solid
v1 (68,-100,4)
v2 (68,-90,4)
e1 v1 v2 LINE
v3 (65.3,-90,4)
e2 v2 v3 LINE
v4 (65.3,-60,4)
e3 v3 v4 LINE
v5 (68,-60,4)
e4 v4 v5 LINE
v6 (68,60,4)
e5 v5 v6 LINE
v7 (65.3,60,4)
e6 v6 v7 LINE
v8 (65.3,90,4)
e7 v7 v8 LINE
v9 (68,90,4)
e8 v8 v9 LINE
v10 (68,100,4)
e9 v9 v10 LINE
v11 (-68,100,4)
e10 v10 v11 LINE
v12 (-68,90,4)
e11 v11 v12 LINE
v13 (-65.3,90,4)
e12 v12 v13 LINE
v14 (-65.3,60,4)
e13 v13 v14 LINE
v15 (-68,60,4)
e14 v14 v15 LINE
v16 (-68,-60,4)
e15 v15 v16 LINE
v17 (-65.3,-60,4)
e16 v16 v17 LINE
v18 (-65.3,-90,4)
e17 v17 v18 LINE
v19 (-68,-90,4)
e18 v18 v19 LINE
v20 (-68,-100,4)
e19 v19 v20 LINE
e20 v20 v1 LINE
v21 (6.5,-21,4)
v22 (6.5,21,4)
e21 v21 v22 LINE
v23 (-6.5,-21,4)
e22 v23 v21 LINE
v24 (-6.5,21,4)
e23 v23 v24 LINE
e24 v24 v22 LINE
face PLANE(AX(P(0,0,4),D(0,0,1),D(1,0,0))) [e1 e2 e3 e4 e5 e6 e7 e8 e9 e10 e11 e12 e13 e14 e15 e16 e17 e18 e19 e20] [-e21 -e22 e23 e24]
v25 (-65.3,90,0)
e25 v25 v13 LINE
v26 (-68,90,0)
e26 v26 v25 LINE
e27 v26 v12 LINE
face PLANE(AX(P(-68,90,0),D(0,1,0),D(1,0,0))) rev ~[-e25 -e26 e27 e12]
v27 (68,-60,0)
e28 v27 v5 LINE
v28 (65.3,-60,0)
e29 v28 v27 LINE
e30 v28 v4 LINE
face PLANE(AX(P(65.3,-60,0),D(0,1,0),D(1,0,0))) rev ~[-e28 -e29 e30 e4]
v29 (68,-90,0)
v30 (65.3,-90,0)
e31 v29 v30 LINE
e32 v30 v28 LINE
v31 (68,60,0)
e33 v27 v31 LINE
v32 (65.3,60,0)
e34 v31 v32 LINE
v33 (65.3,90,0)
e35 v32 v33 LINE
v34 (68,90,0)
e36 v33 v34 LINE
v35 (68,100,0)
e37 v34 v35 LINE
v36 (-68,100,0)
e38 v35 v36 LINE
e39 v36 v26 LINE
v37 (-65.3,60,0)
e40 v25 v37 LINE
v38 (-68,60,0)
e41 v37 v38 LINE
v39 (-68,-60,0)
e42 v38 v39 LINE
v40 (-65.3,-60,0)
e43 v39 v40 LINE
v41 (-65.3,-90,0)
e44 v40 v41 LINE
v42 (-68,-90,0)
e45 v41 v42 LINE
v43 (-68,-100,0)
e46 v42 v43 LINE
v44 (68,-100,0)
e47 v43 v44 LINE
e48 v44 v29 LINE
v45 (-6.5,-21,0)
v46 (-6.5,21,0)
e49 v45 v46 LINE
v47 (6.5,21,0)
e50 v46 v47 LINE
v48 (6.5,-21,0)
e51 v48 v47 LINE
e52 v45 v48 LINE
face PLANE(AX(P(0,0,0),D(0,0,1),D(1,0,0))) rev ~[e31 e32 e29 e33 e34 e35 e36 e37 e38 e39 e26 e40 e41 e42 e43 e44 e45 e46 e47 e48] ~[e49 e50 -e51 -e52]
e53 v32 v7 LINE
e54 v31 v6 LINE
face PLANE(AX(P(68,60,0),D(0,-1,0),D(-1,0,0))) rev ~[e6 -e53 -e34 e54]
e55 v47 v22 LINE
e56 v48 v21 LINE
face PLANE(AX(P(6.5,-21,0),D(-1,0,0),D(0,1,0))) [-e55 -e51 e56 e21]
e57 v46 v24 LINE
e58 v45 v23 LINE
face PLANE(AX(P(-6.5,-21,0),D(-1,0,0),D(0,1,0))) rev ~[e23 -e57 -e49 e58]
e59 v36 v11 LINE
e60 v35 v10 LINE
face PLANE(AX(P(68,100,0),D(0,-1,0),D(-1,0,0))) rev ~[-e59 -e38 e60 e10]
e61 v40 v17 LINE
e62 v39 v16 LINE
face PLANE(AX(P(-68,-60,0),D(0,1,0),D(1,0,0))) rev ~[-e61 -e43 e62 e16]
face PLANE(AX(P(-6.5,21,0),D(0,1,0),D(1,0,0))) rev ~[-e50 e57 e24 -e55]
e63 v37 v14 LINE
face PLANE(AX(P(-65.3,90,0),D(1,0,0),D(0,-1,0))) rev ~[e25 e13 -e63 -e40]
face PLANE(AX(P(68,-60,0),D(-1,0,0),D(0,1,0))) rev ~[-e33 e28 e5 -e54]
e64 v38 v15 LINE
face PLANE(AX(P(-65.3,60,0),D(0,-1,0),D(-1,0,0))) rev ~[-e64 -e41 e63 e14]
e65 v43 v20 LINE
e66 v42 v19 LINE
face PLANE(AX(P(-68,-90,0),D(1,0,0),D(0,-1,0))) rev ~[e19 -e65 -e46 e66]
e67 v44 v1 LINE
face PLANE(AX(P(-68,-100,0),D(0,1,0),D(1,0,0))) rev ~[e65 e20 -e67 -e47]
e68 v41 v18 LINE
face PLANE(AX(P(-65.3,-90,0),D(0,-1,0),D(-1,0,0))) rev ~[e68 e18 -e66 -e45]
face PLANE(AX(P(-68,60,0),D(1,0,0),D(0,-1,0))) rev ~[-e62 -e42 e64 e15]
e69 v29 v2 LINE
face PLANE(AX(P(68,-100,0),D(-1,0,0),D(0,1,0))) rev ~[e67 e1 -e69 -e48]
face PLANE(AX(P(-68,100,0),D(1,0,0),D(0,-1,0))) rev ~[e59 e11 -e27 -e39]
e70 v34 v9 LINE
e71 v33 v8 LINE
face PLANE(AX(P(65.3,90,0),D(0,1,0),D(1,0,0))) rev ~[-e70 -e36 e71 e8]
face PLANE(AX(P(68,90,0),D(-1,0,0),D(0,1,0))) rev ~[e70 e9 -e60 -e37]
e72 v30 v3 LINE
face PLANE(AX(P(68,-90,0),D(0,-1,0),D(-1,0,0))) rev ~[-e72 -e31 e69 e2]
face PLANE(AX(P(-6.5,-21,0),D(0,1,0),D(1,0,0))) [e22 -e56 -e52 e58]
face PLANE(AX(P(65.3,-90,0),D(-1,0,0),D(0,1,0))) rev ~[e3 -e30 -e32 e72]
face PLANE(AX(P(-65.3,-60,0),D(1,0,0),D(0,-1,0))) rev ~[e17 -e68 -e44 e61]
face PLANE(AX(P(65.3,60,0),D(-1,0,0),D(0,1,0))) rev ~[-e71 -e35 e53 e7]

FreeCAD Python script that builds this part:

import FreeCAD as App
import Part
import Sketcher
Q = App.Units.Quantity

doc = App.newDocument("Part")
body = doc.addObject("PartDesign::Body", "Body")

# Sketch on XY plane
sketch1 = body.newObject("Sketcher::SketchObject", "Sketch")
sketch1.AttachmentSupport = (doc.getObject("XY_Plane"), [""])
sketch1.MapMode = "FlatFace"
sketch1.addGeometry(Part.LineSegment(App.Vector(68, 90, 0), App.Vector(68, 100, 0)), False)
sketch1.addGeometry(Part.LineSegment(App.Vector(68, 100, 0), App.Vector(-68, 100, 0)), False)
sketch1.addGeometry(Part.LineSegment(App.Vector(-68, 100, 0), App.Vector(-68, 90, 0)), False)
sketch1.addGeometry(Part.LineSegment(App.Vector(-68, 90, 0), App.Vector(-65.3, 90, 0)), False)
sketch1.addGeometry(Part.LineSegment(App.Vector(-65.3, 90, 0), App.Vector(-65.3, 60, 0)), False)
sketch1.addGeometry(Part.LineSegment(App.Vector(-65.3, 60, 0), App.Vector(-68, 60, 0)), False)
sketch1.addGeometry(Part.LineSegment(App.Vector(-68, 60, 0), App.Vector(-68, -60, 0)), False)
sketch1.addGeometry(Part.LineSegment(App.Vector(-68, -60, 0), App.Vector(-65.3, -60, 0)), False)
sketch1.addGeometry(Part.LineSegment(App.Vector(-65.3, -60, 0), App.Vector(-65.3, -90, 0)), False)
sketch1.addGeometry(Part.LineSegment(App.Vector(-65.3, -90, 0), App.Vector(-68, -90, 0)), False)
sketch1.addGeometry(Part.LineSegment(App.Vector(-68, -90, 0), App.Vector(-68, -100, 0)), False)
sketch1.addGeometry(Part.LineSegment(App.Vector(-68, -100, 0), App.Vector(68, -100, 0)), False)
sketch1.addGeometry(Part.LineSegment(App.Vector(68, -100, 0), App.Vector(68, -90, 0)), False)
sketch1.addGeometry(Part.LineSegment(App.Vector(68, -90, 0), App.Vector(65.3, -90, 0)), False)
sketch1.addGeometry(Part.LineSegment(App.Vector(65.3, -90, 0), App.Vector(65.3, -60, 0)), False)
sketch1.addGeometry(Part.LineSegment(App.Vector(65.3, -60, 0), App.Vector(68, -60, 0)), False)
sketch1.addGeometry(Part.LineSegment(App.Vector(68, -60, 0), App.Vector(68, 60, 0)), False)
sketch1.addGeometry(Part.LineSegment(App.Vector(68, 60, 0), App.Vector(65.3, 60, 0)), False)
sketch1.addGeometry(Part.LineSegment(App.Vector(65.3, 60, 0), App.Vector(65.3, 90, 0)), False)
sketch1.addGeometry(Part.LineSegment(App.Vector(65.3, 90, 0), App.Vector(68, 90, 0)), False)
sketch1.addGeometry(Part.LineSegment(App.Vector(6.5, -21, 0), App.Vector(-6.5, -21, 0)), False)
sketch1.addGeometry(Part.LineSegment(App.Vector(-6.5, -21, 0), App.Vector(-6.5, 21, 0)), False)
sketch1.addGeometry(Part.LineSegment(App.Vector(-6.5, 21, 0), App.Vector(6.5, 21, 0)), False)
sketch1.addGeometry(Part.LineSegment(App.Vector(6.5, 21, 0), App.Vector(6.5, -21, 0)), False)
sketch1.addConstraint(Sketcher.Constraint("Coincident", 0, 2, 1, 1))
sketch1.addConstraint(Sketcher.Constraint("Coincident", 1, 2, 2, 1))
sketch1.addConstraint(Sketcher.Constraint("Coincident", 2, 2, 3, 1))
sketch1.addConstraint(Sketcher.Constraint("Coincident", 3, 2, 4, 1))
sketch1.addConstraint(Sketcher.Constraint("Coincident", 4, 2, 5, 1))
sketch1.addConstraint(Sketcher.Constraint("Coincident", 5, 2, 6, 1))
sketch1.addConstraint(Sketcher.Constraint("Coincident", 6, 2, 7, 1))
sketch1.addConstraint(Sketcher.Constraint("Coincident", 7, 2, 8, 1))
sketch1.addConstraint(Sketcher.Constraint("Coincident", 8, 2, 9, 1))
sketch1.addConstraint(Sketcher.Constraint("Coincident", 9, 2, 10, 1))
sketch1.addConstraint(Sketcher.Constraint("Coincident", 10, 2, 11, 1))
sketch1.addConstraint(Sketcher.Constraint("Coincident", 11, 2, 12, 1))
sketch1.addConstraint(Sketcher.Constraint("Coincident", 12, 2, 13, 1))
sketch1.addConstraint(Sketcher.Constraint("Coincident", 13, 2, 14, 1))
sketch1.addConstraint(Sketcher.Constraint("Coincident", 14, 2, 15, 1))
sketch1.addConstraint(Sketcher.Constraint("Coincident", 15, 2, 16, 1))
sketch1.addConstraint(Sketcher.Constraint("Coincident", 16, 2, 17, 1))
sketch1.addConstraint(Sketcher.Constraint("Coincident", 17, 2, 18, 1))
sketch1.addConstraint(Sketcher.Constraint("Coincident", 18, 2, 19, 1))
sketch1.addConstraint(Sketcher.Constraint("Coincident", 19, 2, 0, 1))
sketch1.addConstraint(Sketcher.Constraint("Coincident", 20, 2, 21, 1))
sketch1.addConstraint(Sketcher.Constraint("Coincident", 21, 2, 22, 1))
sketch1.addConstraint(Sketcher.Constraint("Coincident", 22, 2, 23, 1))
sketch1.addConstraint(Sketcher.Constraint("Coincident", 23, 2, 20, 1))
sketch1.addConstraint(Sketcher.Constraint("Vertical", 0))
sketch1.addConstraint(Sketcher.Constraint("Horizontal", 1))
sketch1.addConstraint(Sketcher.Constraint("Vertical", 2))
sketch1.addConstraint(Sketcher.Constraint("Horizontal", 3))
sketch1.addConstraint(Sketcher.Constraint("Vertical", 4))
sketch1.addConstraint(Sketcher.Constraint("Horizontal", 5))
sketch1.addConstraint(Sketcher.Constraint("Vertical", 6))
sketch1.addConstraint(Sketcher.Constraint("Horizontal", 7))
sketch1.addConstraint(Sketcher.Constraint("Vertical", 8))
sketch1.addConstraint(Sketcher.Constraint("Horizontal", 9))
sketch1.addConstraint(Sketcher.Constraint("Vertical", 10))
sketch1.addConstraint(Sketcher.Constraint("Horizontal", 11))
sketch1.addConstraint(Sketcher.Constraint("Vertical", 12))
sketch1.addConstraint(Sketcher.Constraint("Horizontal", 13))
sketch1.addConstraint(Sketcher.Constraint("Vertical", 14))
sketch1.addConstraint(Sketcher.Constraint("Horizontal", 15))
sketch1.addConstraint(Sketcher.Constraint("Vertical", 16))
sketch1.addConstraint(Sketcher.Constraint("Horizontal", 17))
sketch1.addConstraint(Sketcher.Constraint("Vertical", 18))
sketch1.addConstraint(Sketcher.Constraint("Horizontal", 19))
sketch1.addConstraint(Sketcher.Constraint("Horizontal", 20))
sketch1.addConstraint(Sketcher.Constraint("Vertical", 21))
sketch1.addConstraint(Sketcher.Constraint("Horizontal", 22))
sketch1.addConstraint(Sketcher.Constraint("Vertical", 23))
sketch1.addConstraint(Sketcher.Constraint("Symmetric", 0, 2, 10, 2, -1, 1))
sketch1.addConstraint(Sketcher.Constraint("Symmetric", 2, 2, 12, 2, -1, 1))
sketch1.addConstraint(Sketcher.Constraint("Symmetric", 4, 2, 14, 2, -1, 1))
sketch1.addConstraint(Sketcher.Constraint("Symmetric", 6, 2, 16, 2, -1, 1))
sketch1.addConstraint(Sketcher.Constraint("Symmetric", 8, 2, 18, 2, -1, 1))
sketch1.addConstraint(Sketcher.Constraint("Symmetric", 20, 2, 22, 2, -1, 1))
sketch1.addConstraint(Sketcher.Constraint("Symmetric", 9, 2, 12, 2, -2))
sketch1.addConstraint(Sketcher.Constraint("Symmetric", 7, 2, 14, 2, -2))
sketch1.addConstraint(Sketcher.Constraint("Vertical", 2, 2, 5, 2))
sketch1.addConstraint(Sketcher.Constraint("DistanceX", 1, 2, 1, 1, Q("136 mm")))
sketch1.addConstraint(Sketcher.Constraint("DistanceX", 20, 2, 20, 1, Q("13 mm")))
sketch1.addConstraint(Sketcher.Constraint("DistanceY", 0, 1, 0, 2, Q("10 mm")))
sketch1.addConstraint(Sketcher.Constraint("DistanceY", 4, 2, 4, 1, Q("30 mm")))
sketch1.addConstraint(Sketcher.Constraint("DistanceY", 6, 2, 6, 1, Q("120 mm")))
sketch1.addConstraint(Sketcher.Constraint("DistanceY", 21, 1, 21, 2, Q("42 mm")))
sketch1.addConstraint(Sketcher.Constraint("DistanceX", 3, 1, 3, 2, Q("2.7 mm")))
pad1 = body.newObject("PartDesign::Pad", "Pad")
pad1.Profile = sketch1
pad1.Length = 4

doc.recompute()
